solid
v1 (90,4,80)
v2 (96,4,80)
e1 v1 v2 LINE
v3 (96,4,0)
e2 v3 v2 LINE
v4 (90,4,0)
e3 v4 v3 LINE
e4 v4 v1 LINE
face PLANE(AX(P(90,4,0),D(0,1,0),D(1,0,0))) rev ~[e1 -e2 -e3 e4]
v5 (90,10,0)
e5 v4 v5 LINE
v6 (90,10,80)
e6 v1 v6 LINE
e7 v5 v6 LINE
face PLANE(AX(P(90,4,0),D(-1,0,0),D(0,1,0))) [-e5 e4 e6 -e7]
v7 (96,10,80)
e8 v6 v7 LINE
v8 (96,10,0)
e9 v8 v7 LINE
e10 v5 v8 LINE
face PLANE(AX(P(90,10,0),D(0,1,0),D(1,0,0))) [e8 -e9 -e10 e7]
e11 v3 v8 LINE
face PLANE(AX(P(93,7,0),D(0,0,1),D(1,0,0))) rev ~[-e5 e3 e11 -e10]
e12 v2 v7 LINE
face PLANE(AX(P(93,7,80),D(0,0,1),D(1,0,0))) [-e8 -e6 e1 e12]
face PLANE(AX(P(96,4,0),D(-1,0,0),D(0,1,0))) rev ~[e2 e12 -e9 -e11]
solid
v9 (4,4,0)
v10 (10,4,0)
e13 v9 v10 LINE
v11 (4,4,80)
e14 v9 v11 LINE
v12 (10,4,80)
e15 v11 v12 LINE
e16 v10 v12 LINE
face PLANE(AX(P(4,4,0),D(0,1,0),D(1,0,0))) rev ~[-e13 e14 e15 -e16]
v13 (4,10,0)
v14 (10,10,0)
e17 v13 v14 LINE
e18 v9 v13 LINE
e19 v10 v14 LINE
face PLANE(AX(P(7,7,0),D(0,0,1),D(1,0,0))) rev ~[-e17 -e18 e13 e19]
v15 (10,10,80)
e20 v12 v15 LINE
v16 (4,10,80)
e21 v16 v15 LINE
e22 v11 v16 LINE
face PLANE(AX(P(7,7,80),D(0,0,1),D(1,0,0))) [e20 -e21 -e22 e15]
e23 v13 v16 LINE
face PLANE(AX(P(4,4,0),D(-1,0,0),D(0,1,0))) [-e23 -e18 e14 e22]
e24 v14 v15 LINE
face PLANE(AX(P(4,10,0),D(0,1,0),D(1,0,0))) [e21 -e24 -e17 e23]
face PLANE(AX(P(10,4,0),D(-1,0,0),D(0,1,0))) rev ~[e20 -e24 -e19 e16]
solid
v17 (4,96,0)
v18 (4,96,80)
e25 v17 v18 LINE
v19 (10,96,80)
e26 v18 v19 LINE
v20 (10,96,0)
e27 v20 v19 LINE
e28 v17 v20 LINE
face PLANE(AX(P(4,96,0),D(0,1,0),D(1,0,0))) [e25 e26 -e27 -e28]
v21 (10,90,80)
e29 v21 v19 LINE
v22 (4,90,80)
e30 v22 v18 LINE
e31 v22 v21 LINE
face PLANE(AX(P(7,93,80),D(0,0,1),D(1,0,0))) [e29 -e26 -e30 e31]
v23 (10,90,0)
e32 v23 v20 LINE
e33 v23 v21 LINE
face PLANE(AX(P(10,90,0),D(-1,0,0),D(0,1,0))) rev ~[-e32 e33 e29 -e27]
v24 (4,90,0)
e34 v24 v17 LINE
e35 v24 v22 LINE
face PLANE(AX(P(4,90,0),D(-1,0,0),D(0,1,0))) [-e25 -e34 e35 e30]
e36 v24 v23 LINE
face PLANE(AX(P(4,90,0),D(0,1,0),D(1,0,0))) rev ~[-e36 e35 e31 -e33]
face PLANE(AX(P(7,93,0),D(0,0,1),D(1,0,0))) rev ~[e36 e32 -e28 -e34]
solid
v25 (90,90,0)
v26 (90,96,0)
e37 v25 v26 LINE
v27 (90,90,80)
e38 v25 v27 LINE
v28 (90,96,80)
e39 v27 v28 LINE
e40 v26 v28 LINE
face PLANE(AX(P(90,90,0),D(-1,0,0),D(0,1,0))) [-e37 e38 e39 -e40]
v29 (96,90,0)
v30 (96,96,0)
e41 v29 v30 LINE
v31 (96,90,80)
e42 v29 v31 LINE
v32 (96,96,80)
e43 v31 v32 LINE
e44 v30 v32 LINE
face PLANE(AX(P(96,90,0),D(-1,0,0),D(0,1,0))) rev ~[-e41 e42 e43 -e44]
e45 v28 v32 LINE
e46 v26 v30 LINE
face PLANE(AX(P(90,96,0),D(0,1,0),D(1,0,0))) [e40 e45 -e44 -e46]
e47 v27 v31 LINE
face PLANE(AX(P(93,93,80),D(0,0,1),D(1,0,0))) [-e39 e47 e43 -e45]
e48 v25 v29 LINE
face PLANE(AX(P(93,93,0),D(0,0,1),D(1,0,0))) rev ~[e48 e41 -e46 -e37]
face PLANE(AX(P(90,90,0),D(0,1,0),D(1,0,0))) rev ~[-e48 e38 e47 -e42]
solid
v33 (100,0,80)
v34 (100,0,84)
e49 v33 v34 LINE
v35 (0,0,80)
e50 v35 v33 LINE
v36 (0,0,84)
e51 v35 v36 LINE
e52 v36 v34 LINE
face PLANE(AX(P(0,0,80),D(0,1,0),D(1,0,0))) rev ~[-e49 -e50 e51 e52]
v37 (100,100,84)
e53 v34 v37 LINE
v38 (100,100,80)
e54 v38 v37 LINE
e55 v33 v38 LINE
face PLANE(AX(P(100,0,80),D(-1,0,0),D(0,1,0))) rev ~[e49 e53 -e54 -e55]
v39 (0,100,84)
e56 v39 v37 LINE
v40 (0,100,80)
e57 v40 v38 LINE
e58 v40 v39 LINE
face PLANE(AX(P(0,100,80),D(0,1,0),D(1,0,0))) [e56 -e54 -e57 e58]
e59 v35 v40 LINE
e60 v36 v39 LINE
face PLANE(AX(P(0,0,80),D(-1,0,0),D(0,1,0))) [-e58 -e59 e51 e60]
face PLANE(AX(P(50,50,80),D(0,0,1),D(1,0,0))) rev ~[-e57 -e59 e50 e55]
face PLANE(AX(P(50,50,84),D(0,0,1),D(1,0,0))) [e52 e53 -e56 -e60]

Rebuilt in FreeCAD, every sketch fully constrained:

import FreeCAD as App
import Part
import Sketcher
from FreeCAD import Vector
Q = App.Units.Quantity

doc = App.newDocument("Part")
params = doc.addObject("Spreadsheet::Sheet", "Params")
for row, (alias, value) in enumerate([
    ("sketch1_width", "100 mm"),
    ("pad1_length", "4 mm"),
    ("sketch2_width", "6 mm"),
    ("pad2_length", "80 mm"),
    ("sketch3_width", "6 mm"),
    ("pad3_length", "80 mm"),
    ("sketch4_width", "6 mm"),
    ("pad4_length", "80 mm"),
    ("sketch5_width", "6 mm"),
    ("pad5_length", "80 mm"),
], start=1):
    params.set(f"A{row}", alias)
    params.set(f"B{row}", "=" + value)
    params.setAlias(f"B{row}", alias)

body = doc.addObject("PartDesign::Body", "Body")

# Sketch on XY plane
sketch1 = doc.addObject("Sketcher::SketchObject", "Sketch")
body.addObject(sketch1)
sketch1.AttachmentSupport = (doc.XY_Plane, [""])
sketch1.MapMode = "FlatFace"
sketch1.AttachmentOffset = App.Placement(Vector(0, 0, 80), App.Rotation())
sketch1.addGeometry(Part.LineSegment(Vector(0, 100, 0), Vector(0, 0, 0)), False)
sketch1.addGeometry(Part.LineSegment(Vector(0, 0, 0), Vector(100, 0, 0)), False)
sketch1.addGeometry(Part.LineSegment(Vector(100, 0, 0), Vector(100, 100, 0)), False)
sketch1.addGeometry(Part.LineSegment(Vector(100, 100, 0), Vector(0, 100, 0)), False)
sketch1.addConstraint(Sketcher.Constraint("Coincident", 0, 2, 1, 1))
sketch1.addConstraint(Sketcher.Constraint("Coincident", 1, 2, 2, 1))
sketch1.addConstraint(Sketcher.Constraint("Coincident", 2, 2, 3, 1))
sketch1.addConstraint(Sketcher.Constraint("Coincident", 3, 2, 0, 1))
sketch1.addConstraint(Sketcher.Constraint("Vertical", 0))
sketch1.addConstraint(Sketcher.Constraint("Horizontal", 1))
sketch1.addConstraint(Sketcher.Constraint("Vertical", 2))
sketch1.addConstraint(Sketcher.Constraint("Horizontal", 3))
sketch1.addConstraint(Sketcher.Constraint("Coincident", 0, 2, -1, 1))
sketch1.addConstraint(Sketcher.Constraint("Equal", 3, 0))
sketch1.addConstraint(Sketcher.Constraint("DistanceX", 1, 1, 1, 2, Q("100 mm")))
sketch1.setExpression("Constraints[10]", "Params.sketch1_width")
pad1 = doc.addObject("PartDesign::Pad", "Pad")
body.addObject(pad1)
pad1.Profile = sketch1
pad1.setExpression("Length", "Params.pad1_length")
body2 = doc.addObject("PartDesign::Body", "Body001")

# Sketch on XY plane
sketch2 = doc.addObject("Sketcher::SketchObject", "Sketch001")
body2.addObject(sketch2)
sketch2.AttachmentSupport = (doc.getObject("XY_Plane001"), [""])
sketch2.MapMode = "FlatFace"
sketch2.addGeometry(Part.LineSegment(Vector(4, 10, 0), Vector(4, 4, 0)), False)
sketch2.addGeometry(Part.LineSegment(Vector(4, 4, 0), Vector(10, 4, 0)), False)
sketch2.addGeometry(Part.LineSegment(Vector(10, 4, 0), Vector(10, 10, 0)), False)
sketch2.addGeometry(Part.LineSegment(Vector(10, 10, 0), Vector(4, 10, 0)), False)
sketch2.addConstraint(Sketcher.Constraint("Coincident", 0, 2, 1, 1))
sketch2.addConstraint(Sketcher.Constraint("Coincident", 1, 2, 2, 1))
sketch2.addConstraint(Sketcher.Constraint("Coincident", 2, 2, 3, 1))
sketch2.addConstraint(Sketcher.Constraint("Coincident", 3, 2, 0, 1))
sketch2.addConstraint(Sketcher.Constraint("Vertical", 0))
sketch2.addConstraint(Sketcher.Constraint("Horizontal", 1))
sketch2.addConstraint(Sketcher.Constraint("Vertical", 2))
sketch2.addConstraint(Sketcher.Constraint("Horizontal", 3))
sketch2.addConstraint(Sketcher.Constraint("Equal", 3, 0))
sketch2.addConstraint(Sketcher.Constraint("DistanceX", 1, 1, 1, 2, Q("6 mm")))
sketch2.addConstraint(Sketcher.Constraint("DistanceX", -1, 1, 0, 2, Q("4 mm")))
sketch2.addConstraint(Sketcher.Constraint("DistanceY", -1, 1, 0, 2, Q("4 mm")))
sketch2.setExpression("Constraints[9]", "Params.sketch2_width")
pad2 = doc.addObject("PartDesign::Pad", "Pad001")
body2.addObject(pad2)
pad2.Profile = sketch2
pad2.setExpression("Length", "Params.pad2_length")
body3 = doc.addObject("PartDesign::Body", "Body002")

# Sketch on XY plane
sketch3 = doc.addObject("Sketcher::SketchObject", "Sketch002")
body3.addObject(sketch3)
sketch3.AttachmentSupport = (doc.getObject("XY_Plane002"), [""])
sketch3.MapMode = "FlatFace"
sketch3.addGeometry(Part.LineSegment(Vector(90, 96, 0), Vector(90, 90, 0)), False)
sketch3.addGeometry(Part.LineSegment(Vector(90, 90, 0), Vector(96, 90, 0)), False)
sketch3.addGeometry(Part.LineSegment(Vector(96, 90, 0), Vector(96, 96, 0)), False)
sketch3.addGeometry(Part.LineSegment(Vector(96, 96, 0), Vector(90, 96, 0)), False)
sketch3.addConstraint(Sketcher.Constraint("Coincident", 0, 2, 1, 1))
sketch3.addConstraint(Sketcher.Constraint("Coincident", 1, 2, 2, 1))
sketch3.addConstraint(Sketcher.Constraint("Coincident", 2, 2, 3, 1))
sketch3.addConstraint(Sketcher.Constraint("Coincident", 3, 2, 0, 1))
sketch3.addConstraint(Sketcher.Constraint("Vertical", 0))
sketch3.addConstraint(Sketcher.Constraint("Horizontal", 1))
sketch3.addConstraint(Sketcher.Constraint("Vertical", 2))
sketch3.addConstraint(Sketcher.Constraint("Horizontal", 3))
sketch3.addConstraint(Sketcher.Constraint("Equal", 3, 0))
sketch3.addConstraint(Sketcher.Constraint("DistanceX", 1, 1, 1, 2, Q("6 mm")))
sketch3.addConstraint(Sketcher.Constraint("DistanceX", -1, 1, 0, 2, Q("90 mm")))
sketch3.addConstraint(Sketcher.Constraint("DistanceY", -1, 1, 0, 2, Q("90 mm")))
sketch3.setExpression("Constraints[9]", "Params.sketch3_width")
pad3 = doc.addObject("PartDesign::Pad", "Pad002")
body3.addObject(pad3)
pad3.Profile = sketch3
pad3.setExpression("Length", "Params.pad3_length")
body4 = doc.addObject("PartDesign::Body", "Body003")

# Sketch on XY plane
sketch4 = doc.addObject("Sketcher::SketchObject", "Sketch003")
body4.addObject(sketch4)
sketch4.AttachmentSupport = (doc.getObject("XY_Plane003"), [""])
sketch4.MapMode = "FlatFace"
sketch4.addGeometry(Part.LineSegment(Vector(4, 96, 0), Vector(4, 90, 0)), False)
sketch4.addGeometry(Part.LineSegment(Vector(4, 90, 0), Vector(10, 90, 0)), False)
sketch4.addGeometry(Part.LineSegment(Vector(10, 90, 0), Vector(10, 96, 0)), False)
sketch4.addGeometry(Part.LineSegment(Vector(10, 96, 0), Vector(4, 96, 0)), False)
sketch4.addConstraint(Sketcher.Constraint("Coincident", 0, 2, 1, 1))
sketch4.addConstraint(Sketcher.Constraint("Coincident", 1, 2, 2, 1))
sketch4.addConstraint(Sketcher.Constraint("Coincident", 2, 2, 3, 1))
sketch4.addConstraint(Sketcher.Constraint("Coincident", 3, 2, 0, 1))
sketch4.addConstraint(Sketcher.Constraint("Vertical", 0))
sketch4.addConstraint(Sketcher.Constraint("Horizontal", 1))
sketch4.addConstraint(Sketcher.Constraint("Vertical", 2))
sketch4.addConstraint(Sketcher.Constraint("Horizontal", 3))
sketch4.addConstraint(Sketcher.Constraint("Equal", 3, 0))
sketch4.addConstraint(Sketcher.Constraint("DistanceX", 1, 1, 1, 2, Q("6 mm")))
sketch4.addConstraint(Sketcher.Constraint("DistanceX", -1, 1, 0, 2, Q("4 mm")))
sketch4.addConstraint(Sketcher.Constraint("DistanceY", -1, 1, 0, 2, Q("90 mm")))
sketch4.setExpression("Constraints[9]", "Params.sketch4_width")
pad4 = doc.addObject("PartDesign::Pad", "Pad003")
body4.addObject(pad4)
pad4.Profile = sketch4
pad4.setExpression("Length", "Params.pad4_length")
body5 = doc.addObject("PartDesign::Body", "Body004")

# Sketch on XY plane
sketch5 = doc.addObject("Sketcher::SketchObject", "Sketch004")
body5.addObject(sketch5)
sketch5.AttachmentSupport = (doc.getObject("XY_Plane004"), [""])
sketch5.MapMode = "FlatFace"
sketch5.addGeometry(Part.LineSegment(Vector(90, 10, 0), Vector(90, 4, 0)), False)
sketch5.addGeometry(Part.LineSegment(Vector(90, 4, 0), Vector(96, 4, 0)), False)
sketch5.addGeometry(Part.LineSegment(Vector(96, 4, 0), Vector(96, 10, 0)), False)
sketch5.addGeometry(Part.LineSegment(Vector(96, 10, 0), Vector(90, 10, 0)), False)
sketch5.addConstraint(Sketcher.Constraint("Coincident", 0, 2, 1, 1))
sketch5.addConstraint(Sketcher.Constraint("Coincident", 1, 2, 2, 1))
sketch5.addConstraint(Sketcher.Constraint("Coincident", 2, 2, 3, 1))
sketch5.addConstraint(Sketcher.Constraint("Coincident", 3, 2, 0, 1))
sketch5.addConstraint(Sketcher.Constraint("Vertical", 0))
sketch5.addConstraint(Sketcher.Constraint("Horizontal", 1))
sketch5.addConstraint(Sketcher.Constraint("Vertical", 2))
sketch5.addConstraint(Sketcher.Constraint("Horizontal", 3))
sketch5.addConstraint(Sketcher.Constraint("Equal", 3, 0))
sketch5.addConstraint(Sketcher.Constraint("DistanceX", 1, 1, 1, 2, Q("6 mm")))
sketch5.addConstraint(Sketcher.Constraint("DistanceX", -1, 1, 0, 2, Q("90 mm")))
sketch5.addConstraint(Sketcher.Constraint("DistanceY", -1, 1, 0, 2, Q("4 mm")))
sketch5.setExpression("Constraints[9]", "Params.sketch5_width")
pad5 = doc.addObject("PartDesign::Pad", "Pad004")
body5.addObject(pad5)
pad5.Profile = sketch5
pad5.setExpression("Length", "Params.pad5_length")

doc.recompute()
